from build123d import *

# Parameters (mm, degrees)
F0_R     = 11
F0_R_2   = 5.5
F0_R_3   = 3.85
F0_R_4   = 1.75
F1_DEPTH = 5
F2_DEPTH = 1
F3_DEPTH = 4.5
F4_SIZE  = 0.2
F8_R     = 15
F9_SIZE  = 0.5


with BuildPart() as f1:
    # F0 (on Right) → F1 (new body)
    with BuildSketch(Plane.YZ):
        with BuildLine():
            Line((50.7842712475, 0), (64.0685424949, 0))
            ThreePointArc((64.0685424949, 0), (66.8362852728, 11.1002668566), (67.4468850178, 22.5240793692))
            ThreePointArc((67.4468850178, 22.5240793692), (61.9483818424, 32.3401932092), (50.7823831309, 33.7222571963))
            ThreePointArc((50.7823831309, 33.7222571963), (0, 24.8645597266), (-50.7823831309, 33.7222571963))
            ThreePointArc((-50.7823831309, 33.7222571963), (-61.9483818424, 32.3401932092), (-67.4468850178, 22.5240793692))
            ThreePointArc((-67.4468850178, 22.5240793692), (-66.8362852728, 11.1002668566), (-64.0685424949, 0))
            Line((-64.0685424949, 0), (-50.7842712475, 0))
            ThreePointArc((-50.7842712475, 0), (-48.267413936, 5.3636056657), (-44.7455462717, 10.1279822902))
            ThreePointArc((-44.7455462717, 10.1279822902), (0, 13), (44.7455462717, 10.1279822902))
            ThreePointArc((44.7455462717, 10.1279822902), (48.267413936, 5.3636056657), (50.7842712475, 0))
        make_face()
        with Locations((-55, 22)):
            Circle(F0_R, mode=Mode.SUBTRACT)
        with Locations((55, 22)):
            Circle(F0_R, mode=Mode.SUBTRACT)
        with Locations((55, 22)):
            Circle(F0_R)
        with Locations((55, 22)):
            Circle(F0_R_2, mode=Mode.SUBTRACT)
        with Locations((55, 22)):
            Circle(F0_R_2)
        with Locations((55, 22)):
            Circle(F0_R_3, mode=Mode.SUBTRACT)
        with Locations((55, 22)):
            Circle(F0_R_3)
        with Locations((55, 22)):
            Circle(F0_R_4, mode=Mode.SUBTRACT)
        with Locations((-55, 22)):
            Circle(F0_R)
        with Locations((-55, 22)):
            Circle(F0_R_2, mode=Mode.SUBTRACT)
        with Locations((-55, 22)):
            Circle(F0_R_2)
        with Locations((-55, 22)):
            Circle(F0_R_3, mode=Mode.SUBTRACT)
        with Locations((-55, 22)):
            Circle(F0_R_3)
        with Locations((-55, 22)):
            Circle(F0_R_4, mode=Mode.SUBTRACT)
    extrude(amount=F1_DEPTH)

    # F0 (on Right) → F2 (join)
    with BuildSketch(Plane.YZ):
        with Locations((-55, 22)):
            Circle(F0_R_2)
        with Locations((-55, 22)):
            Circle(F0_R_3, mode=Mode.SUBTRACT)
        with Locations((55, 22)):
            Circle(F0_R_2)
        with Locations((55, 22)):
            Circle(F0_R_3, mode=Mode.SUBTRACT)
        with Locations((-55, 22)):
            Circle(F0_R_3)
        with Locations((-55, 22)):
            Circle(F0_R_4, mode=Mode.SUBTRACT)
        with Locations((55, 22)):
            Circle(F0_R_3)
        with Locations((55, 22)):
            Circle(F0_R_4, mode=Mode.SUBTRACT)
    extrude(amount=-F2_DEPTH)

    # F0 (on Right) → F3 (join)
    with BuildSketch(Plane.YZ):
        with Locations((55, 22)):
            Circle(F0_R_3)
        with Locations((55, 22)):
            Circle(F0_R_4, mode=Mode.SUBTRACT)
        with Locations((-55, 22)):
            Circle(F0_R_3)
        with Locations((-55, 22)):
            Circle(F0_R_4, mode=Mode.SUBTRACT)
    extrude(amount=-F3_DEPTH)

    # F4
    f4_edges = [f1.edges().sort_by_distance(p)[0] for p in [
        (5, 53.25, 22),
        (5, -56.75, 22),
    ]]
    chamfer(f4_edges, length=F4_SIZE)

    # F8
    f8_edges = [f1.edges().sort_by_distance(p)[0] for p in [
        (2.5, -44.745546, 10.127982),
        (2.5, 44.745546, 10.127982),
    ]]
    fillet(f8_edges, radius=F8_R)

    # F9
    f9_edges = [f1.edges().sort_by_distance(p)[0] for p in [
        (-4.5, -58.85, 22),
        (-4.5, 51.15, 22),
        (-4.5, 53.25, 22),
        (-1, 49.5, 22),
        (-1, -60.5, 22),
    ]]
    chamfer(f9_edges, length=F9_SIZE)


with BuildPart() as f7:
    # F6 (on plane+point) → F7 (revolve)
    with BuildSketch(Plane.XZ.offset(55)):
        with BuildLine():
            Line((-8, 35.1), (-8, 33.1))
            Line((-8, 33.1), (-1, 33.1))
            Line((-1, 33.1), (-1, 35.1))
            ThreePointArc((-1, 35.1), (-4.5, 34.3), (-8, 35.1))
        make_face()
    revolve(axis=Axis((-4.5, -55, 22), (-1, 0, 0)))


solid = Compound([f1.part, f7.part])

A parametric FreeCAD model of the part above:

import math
import FreeCAD as App
import Part
import Sketcher
from FreeCAD import Vector
Q = App.Units.Quantity


def edges_at(feature, points):
    """Names of the edges that pass closest to the given points."""
    edges = feature.Shape.Edges
    near = lambda p: min(range(len(edges)), key=lambda i: edges[i].distToShape(Part.Vertex(*p))[0])
    return sorted({f"Edge{near(p) + 1}" for p in points})

doc = App.newDocument("Part")
body = doc.addObject("PartDesign::Body", "Body")

# Sketch on YZ plane
sketch1 = doc.addObject("Sketcher::SketchObject", "Sketch")
body.addObject(sketch1)
sketch1.AttachmentSupport = (doc.YZ_Plane, [""])
sketch1.MapMode = "FlatFace"
sketch1.addGeometry(Part.LineSegment(Vector(50.784271, 0, 0), Vector(64.068542, 0, 0)), False)
sketch1.addGeometry(Part.ArcOfCircle(Part.Circle(Vector(7.5, 20, 0), Vector(0, 0, 1), 60), math.radians(-19.471221), math.radians(2.41103)), False)
sketch1.addGeometry(Part.ArcOfCircle(Part.Circle(Vector(55, 22, 0), Vector(0, 0, 1), 12.457913), math.radians(2.41103), math.radians(109.788509)), False)
sketch1.addGeometry(Part.ArcOfCircle(Part.Circle(Vector(0, 174.86456, 0), Vector(0, 0, 1), 150), math.radians(-109.788509), math.radians(-70.211491)), False)
sketch1.addGeometry(Part.ArcOfCircle(Part.Circle(Vector(-55, 22, 0), Vector(0, 0, 1), 12.457913), math.radians(70.211491), math.radians(177.58897)), False)
sketch1.addGeometry(Part.ArcOfCircle(Part.Circle(Vector(-7.5, 20, 0), Vector(0, 0, 1), 60), math.radians(177.58897), math.radians(199.471221)), False)
sketch1.addGeometry(Part.LineSegment(Vector(-64.068542, 0, 0), Vector(-50.784271, 0, 0)), False)
sketch1.addGeometry(Part.ArcOfCircle(Part.Circle(Vector(-22.5, -10, 0), Vector(0, 0, 1), 30), math.radians(137.860905), math.radians(160.528779)), False)
sketch1.addGeometry(Part.ArcOfCircle(Part.Circle(Vector(0, -337, 0), Vector(0, 0, 1), 350), math.radians(82.654953), math.radians(97.345047)), False)
sketch1.addGeometry(Part.ArcOfCircle(Part.Circle(Vector(22.5, -10, 0), Vector(0, 0, 1), 30), math.radians(19.471221), math.radians(42.139095)), False)
sketch1.addGeometry(Part.Circle(Vector(-55, 22, 0), Vector(0, 0, 1), 1.75), False)
sketch1.addGeometry(Part.Circle(Vector(55, 22, 0), Vector(0, 0, 1), 1.75), False)
sketch1.addConstraint(Sketcher.Constraint("Coincident", 0, 2, 1, 1))
sketch1.addConstraint(Sketcher.Constraint("Tangent", 1, 2, 2, 1))
sketch1.addConstraint(Sketcher.Constraint("Tangent", 2, 2, 3, 2))
sketch1.addConstraint(Sketcher.Constraint("Tangent", 3, 1, 4, 1))
sketch1.addConstraint(Sketcher.Constraint("Tangent", 4, 2, 5, 1))
sketch1.addConstraint(Sketcher.Constraint("Coincident", 5, 2, 6, 1))
sketch1.addConstraint(Sketcher.Constraint("Coincident", 6, 2, 7, 2))
sketch1.addConstraint(Sketcher.Constraint("Coincident", 7, 1, 8, 2))
sketch1.addConstraint(Sketcher.Constraint("Coincident", 8, 1, 9, 2))
sketch1.addConstraint(Sketcher.Constraint("Coincident", 9, 1, 0, 1))
sketch1.addConstraint(Sketcher.Constraint("Horizontal", 0))
sketch1.addConstraint(Sketcher.Constraint("Horizontal", 6))
sketch1.addConstraint(Sketcher.Constraint("Coincident", 10, 3, 4, 3))
sketch1.addConstraint(Sketcher.Constraint("Coincident", 11, 3, 2, 3))
sketch1.addConstraint(Sketcher.Constraint("Equal", 2, 4))
sketch1.addConstraint(Sketcher.Constraint("Equal", 1, 5))
sketch1.addConstraint(Sketcher.Constraint("Equal", 7, 9))
sketch1.addConstraint(Sketcher.Constraint("Equal", 10, 11))
sketch1.addConstraint(Sketcher.Constraint("Symmetric", 0, 2, 5, 2, -1, 1))
sketch1.addConstraint(Sketcher.Constraint("Symmetric", 2, 3, 4, 3, -2))
sketch1.addConstraint(Sketcher.Constraint("Symmetric", 7, 3, 9, 3, -2))
sketch1.addConstraint(Sketcher.Constraint("PointOnObject", 8, 3, -2))
sketch1.addConstraint(Sketcher.Constraint("PointOnObject", 0, 2, -1))
sketch1.addConstraint(Sketcher.Constraint("Radius", 1, Q("60 mm")))
sketch1.addConstraint(Sketcher.Constraint("Radius", 3, Q("150 mm")))
sketch1.addConstraint(Sketcher.Constraint("Radius", 7, Q("30 mm")))
sketch1.addConstraint(Sketcher.Constraint("Radius", 8, Q("350 mm")))
sketch1.addConstraint(Sketcher.Constraint("Diameter", 10, Q("3.5 mm")))
sketch1.addConstraint(Sketcher.Constraint("DistanceY", -1, 1, 1, 3, Q("20 mm")))
sketch1.addConstraint(Sketcher.Constraint("DistanceX", -1, 1, 2, 3, Q("55 mm")))
sketch1.addConstraint(Sketcher.Constraint("DistanceY", -1, 1, 2, 3, Q("22 mm")))
sketch1.addConstraint(Sketcher.Constraint("DistanceY", 7, 3, -1, 1, Q("10 mm")))
sketch1.addConstraint(Sketcher.Constraint("DistanceY", 8, 3, -1, 1, Q("337 mm")))
sketch1.addConstraint(Sketcher.Constraint("DistanceX", 5, 3, 1, 3, Q("15 mm")))
sketch1.addConstraint(Sketcher.Constraint("DistanceX", 7, 3, 5, 3, Q("15 mm")))
pad1 = doc.addObject("PartDesign::Pad", "Pad")
body.addObject(pad1)
pad1.Profile = sketch1
pad1.Length = 5

# Sketch on YZ plane
sketch2 = doc.addObject("Sketcher::SketchObject", "Sketch001")
body.addObject(sketch2)
sketch2.AttachmentSupport = (doc.YZ_Plane, [""])
sketch2.MapMode = "FlatFace"
sketch2.addGeometry(Part.Circle(Vector(-55, 22, 0), Vector(0, 0, 1), 5.5), False)
sketch2.addGeometry(Part.Circle(Vector(-55, 22, 0), Vector(0, 0, 1), 1.75), False)
sketch2.addGeometry(Part.Circle(Vector(55, 22, 0), Vector(0, 0, 1), 5.5), False)
sketch2.addGeometry(Part.Circle(Vector(55, 22, 0), Vector(0, 0, 1), 1.75), False)
sketch2.addConstraint(Sketcher.Constraint("Coincident", 1, 3, 0, 3))
sketch2.addConstraint(Sketcher.Constraint("Coincident", 3, 3, 2, 3))
sketch2.addConstraint(Sketcher.Constraint("Equal", 0, 2))
sketch2.addConstraint(Sketcher.Constraint("Equal", 1, 3))
sketch2.addConstraint(Sketcher.Constraint("Symmetric", 0, 3, 2, 3, -2))
sketch2.addConstraint(Sketcher.Constraint("Diameter", 0, Q("11 mm")))
sketch2.addConstraint(Sketcher.Constraint("Diameter", 1, Q("3.5 mm")))
sketch2.addConstraint(Sketcher.Constraint("DistanceX", 0, 3, -1, 1, Q("55 mm")))
sketch2.addConstraint(Sketcher.Constraint("DistanceY", -1, 1, 0, 3, Q("22 mm")))
pad2 = doc.addObject("PartDesign::Pad", "Pad001")
body.addObject(pad2)
pad2.Profile = sketch2
pad2.Length = 1
pad2.Reversed = True

# Sketch on YZ plane
sketch3 = doc.addObject("Sketcher::SketchObject", "Sketch002")
body.addObject(sketch3)
sketch3.AttachmentSupport = (doc.YZ_Plane, [""])
sketch3.MapMode = "FlatFace"
sketch3.addGeometry(Part.Circle(Vector(55, 22, 0), Vector(0, 0, 1), 3.85), False)
sketch3.addGeometry(Part.Circle(Vector(55, 22, 0), Vector(0, 0, 1), 1.75), False)
sketch3.addGeometry(Part.Circle(Vector(-55, 22, 0), Vector(0, 0, 1), 3.85), False)
sketch3.addGeometry(Part.Circle(Vector(-55, 22, 0), Vector(0, 0, 1), 1.75), False)
sketch3.addConstraint(Sketcher.Constraint("Coincident", 1, 3, 0, 3))
sketch3.addConstraint(Sketcher.Constraint("Coincident", 3, 3, 2, 3))
sketch3.addConstraint(Sketcher.Constraint("Equal", 0, 2))
sketch3.addConstraint(Sketcher.Constraint("Equal", 1, 3))
sketch3.addConstraint(Sketcher.Constraint("Symmetric", 0, 3, 2, 3, -2))
sketch3.addConstraint(Sketcher.Constraint("Diameter", 0, Q("7.7 mm")))
sketch3.addConstraint(Sketcher.Constraint("Diameter", 1, Q("3.5 mm")))
sketch3.addConstraint(Sketcher.Constraint("DistanceX", -1, 1, 0, 3, Q("55 mm")))
sketch3.addConstraint(Sketcher.Constraint("DistanceY", -1, 1, 0, 3, Q("22 mm")))
pad3 = doc.addObject("PartDesign::Pad", "Pad002")
body.addObject(pad3)
pad3.Profile = sketch3
pad3.Length = 4.5
pad3.Reversed = True
doc.recompute()

chamfer = doc.addObject("PartDesign::Chamfer", "Chamfer")
body.addObject(chamfer)
chamfer.Base = (pad3, edges_at(pad3, [(5, 53.25, 22), (5, -56.75, 22)]))
chamfer.Size = 0.2
doc.recompute()

fillet = doc.addObject("PartDesign::Fillet", "Fillet")
body.addObject(fillet)
fillet.Base = (chamfer, edges_at(chamfer, [(2.5, -44.746, 10.128), (2.5, 44.746, 10.128)]))
fillet.Radius = 15
doc.recompute()

chamfer2 = doc.addObject("PartDesign::Chamfer", "Chamfer001")
body.addObject(chamfer2)
chamfer2.Base = (fillet, edges_at(fillet, [
    (-4.5, -58.85, 22),
    (-4.5, 51.15, 22),
    (-4.5, 53.25, 22),
    (-1, 49.5, 22),
    (-1, -60.5, 22),
]))
chamfer2.Size = 0.5
body2 = doc.addObject("PartDesign::Body", "Body001")

# Sketch on XZ plane
sketch4 = doc.addObject("Sketcher::SketchObject", "Sketch003")
body2.addObject(sketch4)
sketch4.AttachmentSupport = (doc.getObject("XZ_Plane001"), [""])
sketch4.MapMode = "FlatFace"
sketch4.AttachmentOffset = App.Placement(Vector(0, 0, 55), App.Rotation())
sketch4.addGeometry(Part.LineSegment(Vector(-8, 35.1, 0), Vector(-8, 33.1, 0)), False)
sketch4.addGeometry(Part.LineSegment(Vector(-8, 33.1, 0), Vector(-1, 33.1, 0)), False)
sketch4.addGeometry(Part.LineSegment(Vector(-1, 33.1, 0), Vector(-1, 35.1, 0)), False)
sketch4.addGeometry(Part.ArcOfCircle(Part.Circle(Vector(-4.5, 42.35625, 0), Vector(0, 0, 1), 8.05625), math.radians(-115.750003), math.radians(-64.249997)), False)
sketch4.addGeometry(Part.LineSegment(Vector(-1, 22, 0), Vector(-8, 22, 0)), True)  # axis
sketch4.addConstraint(Sketcher.Constraint("Coincident", 0, 2, 1, 1))
sketch4.addConstraint(Sketcher.Constraint("Coincident", 1, 2, 2, 1))
sketch4.addConstraint(Sketcher.Constraint("Coincident", 2, 2, 3, 2))
sketch4.addConstraint(Sketcher.Constraint("Coincident", 3, 1, 0, 1))
sketch4.addConstraint(Sketcher.Constraint("Vertical", 0))
sketch4.addConstraint(Sketcher.Constraint("Horizontal", 1))
sketch4.addConstraint(Sketcher.Constraint("Vertical", 2))
sketch4.addConstraint(Sketcher.Constraint("Horizontal", 4))
sketch4.addConstraint(Sketcher.Constraint("Horizontal", 2, 2, 3, 1))
sketch4.addConstraint(Sketcher.Constraint("Vertical", 2, 2, 4, 1))
sketch4.addConstraint(Sketcher.Constraint("Vertical", 3, 1, 4, 2))
sketch4.addConstraint(Sketcher.Constraint("DistanceX", 1, 1, 1, 2, Q("7 mm")))
sketch4.addConstraint(Sketcher.Constraint("DistanceY", 0, 2, 0, 1, Q("2 mm")))
sketch4.addConstraint(Sketcher.Constraint("DistanceX", 0, 2, -1, 1, Q("8 mm")))
sketch4.addConstraint(Sketcher.Constraint("DistanceY", -1, 1, 4, 1, Q("22 mm")))
sketch4.addConstraint(Sketcher.Constraint("DistanceY", -1, 1, 0, 2, Q("33.1 mm")))
sketch4.addConstraint(Sketcher.Constraint("Radius", 3, Q("8.05625 mm")))
revolution = doc.addObject("PartDesign::Revolution", "Revolution")
body2.addObject(revolution)
revolution.Profile = sketch4
revolution.ReferenceAxis = (sketch4, ["Axis0"])
revolution.Angle = 360

doc.recompute()
